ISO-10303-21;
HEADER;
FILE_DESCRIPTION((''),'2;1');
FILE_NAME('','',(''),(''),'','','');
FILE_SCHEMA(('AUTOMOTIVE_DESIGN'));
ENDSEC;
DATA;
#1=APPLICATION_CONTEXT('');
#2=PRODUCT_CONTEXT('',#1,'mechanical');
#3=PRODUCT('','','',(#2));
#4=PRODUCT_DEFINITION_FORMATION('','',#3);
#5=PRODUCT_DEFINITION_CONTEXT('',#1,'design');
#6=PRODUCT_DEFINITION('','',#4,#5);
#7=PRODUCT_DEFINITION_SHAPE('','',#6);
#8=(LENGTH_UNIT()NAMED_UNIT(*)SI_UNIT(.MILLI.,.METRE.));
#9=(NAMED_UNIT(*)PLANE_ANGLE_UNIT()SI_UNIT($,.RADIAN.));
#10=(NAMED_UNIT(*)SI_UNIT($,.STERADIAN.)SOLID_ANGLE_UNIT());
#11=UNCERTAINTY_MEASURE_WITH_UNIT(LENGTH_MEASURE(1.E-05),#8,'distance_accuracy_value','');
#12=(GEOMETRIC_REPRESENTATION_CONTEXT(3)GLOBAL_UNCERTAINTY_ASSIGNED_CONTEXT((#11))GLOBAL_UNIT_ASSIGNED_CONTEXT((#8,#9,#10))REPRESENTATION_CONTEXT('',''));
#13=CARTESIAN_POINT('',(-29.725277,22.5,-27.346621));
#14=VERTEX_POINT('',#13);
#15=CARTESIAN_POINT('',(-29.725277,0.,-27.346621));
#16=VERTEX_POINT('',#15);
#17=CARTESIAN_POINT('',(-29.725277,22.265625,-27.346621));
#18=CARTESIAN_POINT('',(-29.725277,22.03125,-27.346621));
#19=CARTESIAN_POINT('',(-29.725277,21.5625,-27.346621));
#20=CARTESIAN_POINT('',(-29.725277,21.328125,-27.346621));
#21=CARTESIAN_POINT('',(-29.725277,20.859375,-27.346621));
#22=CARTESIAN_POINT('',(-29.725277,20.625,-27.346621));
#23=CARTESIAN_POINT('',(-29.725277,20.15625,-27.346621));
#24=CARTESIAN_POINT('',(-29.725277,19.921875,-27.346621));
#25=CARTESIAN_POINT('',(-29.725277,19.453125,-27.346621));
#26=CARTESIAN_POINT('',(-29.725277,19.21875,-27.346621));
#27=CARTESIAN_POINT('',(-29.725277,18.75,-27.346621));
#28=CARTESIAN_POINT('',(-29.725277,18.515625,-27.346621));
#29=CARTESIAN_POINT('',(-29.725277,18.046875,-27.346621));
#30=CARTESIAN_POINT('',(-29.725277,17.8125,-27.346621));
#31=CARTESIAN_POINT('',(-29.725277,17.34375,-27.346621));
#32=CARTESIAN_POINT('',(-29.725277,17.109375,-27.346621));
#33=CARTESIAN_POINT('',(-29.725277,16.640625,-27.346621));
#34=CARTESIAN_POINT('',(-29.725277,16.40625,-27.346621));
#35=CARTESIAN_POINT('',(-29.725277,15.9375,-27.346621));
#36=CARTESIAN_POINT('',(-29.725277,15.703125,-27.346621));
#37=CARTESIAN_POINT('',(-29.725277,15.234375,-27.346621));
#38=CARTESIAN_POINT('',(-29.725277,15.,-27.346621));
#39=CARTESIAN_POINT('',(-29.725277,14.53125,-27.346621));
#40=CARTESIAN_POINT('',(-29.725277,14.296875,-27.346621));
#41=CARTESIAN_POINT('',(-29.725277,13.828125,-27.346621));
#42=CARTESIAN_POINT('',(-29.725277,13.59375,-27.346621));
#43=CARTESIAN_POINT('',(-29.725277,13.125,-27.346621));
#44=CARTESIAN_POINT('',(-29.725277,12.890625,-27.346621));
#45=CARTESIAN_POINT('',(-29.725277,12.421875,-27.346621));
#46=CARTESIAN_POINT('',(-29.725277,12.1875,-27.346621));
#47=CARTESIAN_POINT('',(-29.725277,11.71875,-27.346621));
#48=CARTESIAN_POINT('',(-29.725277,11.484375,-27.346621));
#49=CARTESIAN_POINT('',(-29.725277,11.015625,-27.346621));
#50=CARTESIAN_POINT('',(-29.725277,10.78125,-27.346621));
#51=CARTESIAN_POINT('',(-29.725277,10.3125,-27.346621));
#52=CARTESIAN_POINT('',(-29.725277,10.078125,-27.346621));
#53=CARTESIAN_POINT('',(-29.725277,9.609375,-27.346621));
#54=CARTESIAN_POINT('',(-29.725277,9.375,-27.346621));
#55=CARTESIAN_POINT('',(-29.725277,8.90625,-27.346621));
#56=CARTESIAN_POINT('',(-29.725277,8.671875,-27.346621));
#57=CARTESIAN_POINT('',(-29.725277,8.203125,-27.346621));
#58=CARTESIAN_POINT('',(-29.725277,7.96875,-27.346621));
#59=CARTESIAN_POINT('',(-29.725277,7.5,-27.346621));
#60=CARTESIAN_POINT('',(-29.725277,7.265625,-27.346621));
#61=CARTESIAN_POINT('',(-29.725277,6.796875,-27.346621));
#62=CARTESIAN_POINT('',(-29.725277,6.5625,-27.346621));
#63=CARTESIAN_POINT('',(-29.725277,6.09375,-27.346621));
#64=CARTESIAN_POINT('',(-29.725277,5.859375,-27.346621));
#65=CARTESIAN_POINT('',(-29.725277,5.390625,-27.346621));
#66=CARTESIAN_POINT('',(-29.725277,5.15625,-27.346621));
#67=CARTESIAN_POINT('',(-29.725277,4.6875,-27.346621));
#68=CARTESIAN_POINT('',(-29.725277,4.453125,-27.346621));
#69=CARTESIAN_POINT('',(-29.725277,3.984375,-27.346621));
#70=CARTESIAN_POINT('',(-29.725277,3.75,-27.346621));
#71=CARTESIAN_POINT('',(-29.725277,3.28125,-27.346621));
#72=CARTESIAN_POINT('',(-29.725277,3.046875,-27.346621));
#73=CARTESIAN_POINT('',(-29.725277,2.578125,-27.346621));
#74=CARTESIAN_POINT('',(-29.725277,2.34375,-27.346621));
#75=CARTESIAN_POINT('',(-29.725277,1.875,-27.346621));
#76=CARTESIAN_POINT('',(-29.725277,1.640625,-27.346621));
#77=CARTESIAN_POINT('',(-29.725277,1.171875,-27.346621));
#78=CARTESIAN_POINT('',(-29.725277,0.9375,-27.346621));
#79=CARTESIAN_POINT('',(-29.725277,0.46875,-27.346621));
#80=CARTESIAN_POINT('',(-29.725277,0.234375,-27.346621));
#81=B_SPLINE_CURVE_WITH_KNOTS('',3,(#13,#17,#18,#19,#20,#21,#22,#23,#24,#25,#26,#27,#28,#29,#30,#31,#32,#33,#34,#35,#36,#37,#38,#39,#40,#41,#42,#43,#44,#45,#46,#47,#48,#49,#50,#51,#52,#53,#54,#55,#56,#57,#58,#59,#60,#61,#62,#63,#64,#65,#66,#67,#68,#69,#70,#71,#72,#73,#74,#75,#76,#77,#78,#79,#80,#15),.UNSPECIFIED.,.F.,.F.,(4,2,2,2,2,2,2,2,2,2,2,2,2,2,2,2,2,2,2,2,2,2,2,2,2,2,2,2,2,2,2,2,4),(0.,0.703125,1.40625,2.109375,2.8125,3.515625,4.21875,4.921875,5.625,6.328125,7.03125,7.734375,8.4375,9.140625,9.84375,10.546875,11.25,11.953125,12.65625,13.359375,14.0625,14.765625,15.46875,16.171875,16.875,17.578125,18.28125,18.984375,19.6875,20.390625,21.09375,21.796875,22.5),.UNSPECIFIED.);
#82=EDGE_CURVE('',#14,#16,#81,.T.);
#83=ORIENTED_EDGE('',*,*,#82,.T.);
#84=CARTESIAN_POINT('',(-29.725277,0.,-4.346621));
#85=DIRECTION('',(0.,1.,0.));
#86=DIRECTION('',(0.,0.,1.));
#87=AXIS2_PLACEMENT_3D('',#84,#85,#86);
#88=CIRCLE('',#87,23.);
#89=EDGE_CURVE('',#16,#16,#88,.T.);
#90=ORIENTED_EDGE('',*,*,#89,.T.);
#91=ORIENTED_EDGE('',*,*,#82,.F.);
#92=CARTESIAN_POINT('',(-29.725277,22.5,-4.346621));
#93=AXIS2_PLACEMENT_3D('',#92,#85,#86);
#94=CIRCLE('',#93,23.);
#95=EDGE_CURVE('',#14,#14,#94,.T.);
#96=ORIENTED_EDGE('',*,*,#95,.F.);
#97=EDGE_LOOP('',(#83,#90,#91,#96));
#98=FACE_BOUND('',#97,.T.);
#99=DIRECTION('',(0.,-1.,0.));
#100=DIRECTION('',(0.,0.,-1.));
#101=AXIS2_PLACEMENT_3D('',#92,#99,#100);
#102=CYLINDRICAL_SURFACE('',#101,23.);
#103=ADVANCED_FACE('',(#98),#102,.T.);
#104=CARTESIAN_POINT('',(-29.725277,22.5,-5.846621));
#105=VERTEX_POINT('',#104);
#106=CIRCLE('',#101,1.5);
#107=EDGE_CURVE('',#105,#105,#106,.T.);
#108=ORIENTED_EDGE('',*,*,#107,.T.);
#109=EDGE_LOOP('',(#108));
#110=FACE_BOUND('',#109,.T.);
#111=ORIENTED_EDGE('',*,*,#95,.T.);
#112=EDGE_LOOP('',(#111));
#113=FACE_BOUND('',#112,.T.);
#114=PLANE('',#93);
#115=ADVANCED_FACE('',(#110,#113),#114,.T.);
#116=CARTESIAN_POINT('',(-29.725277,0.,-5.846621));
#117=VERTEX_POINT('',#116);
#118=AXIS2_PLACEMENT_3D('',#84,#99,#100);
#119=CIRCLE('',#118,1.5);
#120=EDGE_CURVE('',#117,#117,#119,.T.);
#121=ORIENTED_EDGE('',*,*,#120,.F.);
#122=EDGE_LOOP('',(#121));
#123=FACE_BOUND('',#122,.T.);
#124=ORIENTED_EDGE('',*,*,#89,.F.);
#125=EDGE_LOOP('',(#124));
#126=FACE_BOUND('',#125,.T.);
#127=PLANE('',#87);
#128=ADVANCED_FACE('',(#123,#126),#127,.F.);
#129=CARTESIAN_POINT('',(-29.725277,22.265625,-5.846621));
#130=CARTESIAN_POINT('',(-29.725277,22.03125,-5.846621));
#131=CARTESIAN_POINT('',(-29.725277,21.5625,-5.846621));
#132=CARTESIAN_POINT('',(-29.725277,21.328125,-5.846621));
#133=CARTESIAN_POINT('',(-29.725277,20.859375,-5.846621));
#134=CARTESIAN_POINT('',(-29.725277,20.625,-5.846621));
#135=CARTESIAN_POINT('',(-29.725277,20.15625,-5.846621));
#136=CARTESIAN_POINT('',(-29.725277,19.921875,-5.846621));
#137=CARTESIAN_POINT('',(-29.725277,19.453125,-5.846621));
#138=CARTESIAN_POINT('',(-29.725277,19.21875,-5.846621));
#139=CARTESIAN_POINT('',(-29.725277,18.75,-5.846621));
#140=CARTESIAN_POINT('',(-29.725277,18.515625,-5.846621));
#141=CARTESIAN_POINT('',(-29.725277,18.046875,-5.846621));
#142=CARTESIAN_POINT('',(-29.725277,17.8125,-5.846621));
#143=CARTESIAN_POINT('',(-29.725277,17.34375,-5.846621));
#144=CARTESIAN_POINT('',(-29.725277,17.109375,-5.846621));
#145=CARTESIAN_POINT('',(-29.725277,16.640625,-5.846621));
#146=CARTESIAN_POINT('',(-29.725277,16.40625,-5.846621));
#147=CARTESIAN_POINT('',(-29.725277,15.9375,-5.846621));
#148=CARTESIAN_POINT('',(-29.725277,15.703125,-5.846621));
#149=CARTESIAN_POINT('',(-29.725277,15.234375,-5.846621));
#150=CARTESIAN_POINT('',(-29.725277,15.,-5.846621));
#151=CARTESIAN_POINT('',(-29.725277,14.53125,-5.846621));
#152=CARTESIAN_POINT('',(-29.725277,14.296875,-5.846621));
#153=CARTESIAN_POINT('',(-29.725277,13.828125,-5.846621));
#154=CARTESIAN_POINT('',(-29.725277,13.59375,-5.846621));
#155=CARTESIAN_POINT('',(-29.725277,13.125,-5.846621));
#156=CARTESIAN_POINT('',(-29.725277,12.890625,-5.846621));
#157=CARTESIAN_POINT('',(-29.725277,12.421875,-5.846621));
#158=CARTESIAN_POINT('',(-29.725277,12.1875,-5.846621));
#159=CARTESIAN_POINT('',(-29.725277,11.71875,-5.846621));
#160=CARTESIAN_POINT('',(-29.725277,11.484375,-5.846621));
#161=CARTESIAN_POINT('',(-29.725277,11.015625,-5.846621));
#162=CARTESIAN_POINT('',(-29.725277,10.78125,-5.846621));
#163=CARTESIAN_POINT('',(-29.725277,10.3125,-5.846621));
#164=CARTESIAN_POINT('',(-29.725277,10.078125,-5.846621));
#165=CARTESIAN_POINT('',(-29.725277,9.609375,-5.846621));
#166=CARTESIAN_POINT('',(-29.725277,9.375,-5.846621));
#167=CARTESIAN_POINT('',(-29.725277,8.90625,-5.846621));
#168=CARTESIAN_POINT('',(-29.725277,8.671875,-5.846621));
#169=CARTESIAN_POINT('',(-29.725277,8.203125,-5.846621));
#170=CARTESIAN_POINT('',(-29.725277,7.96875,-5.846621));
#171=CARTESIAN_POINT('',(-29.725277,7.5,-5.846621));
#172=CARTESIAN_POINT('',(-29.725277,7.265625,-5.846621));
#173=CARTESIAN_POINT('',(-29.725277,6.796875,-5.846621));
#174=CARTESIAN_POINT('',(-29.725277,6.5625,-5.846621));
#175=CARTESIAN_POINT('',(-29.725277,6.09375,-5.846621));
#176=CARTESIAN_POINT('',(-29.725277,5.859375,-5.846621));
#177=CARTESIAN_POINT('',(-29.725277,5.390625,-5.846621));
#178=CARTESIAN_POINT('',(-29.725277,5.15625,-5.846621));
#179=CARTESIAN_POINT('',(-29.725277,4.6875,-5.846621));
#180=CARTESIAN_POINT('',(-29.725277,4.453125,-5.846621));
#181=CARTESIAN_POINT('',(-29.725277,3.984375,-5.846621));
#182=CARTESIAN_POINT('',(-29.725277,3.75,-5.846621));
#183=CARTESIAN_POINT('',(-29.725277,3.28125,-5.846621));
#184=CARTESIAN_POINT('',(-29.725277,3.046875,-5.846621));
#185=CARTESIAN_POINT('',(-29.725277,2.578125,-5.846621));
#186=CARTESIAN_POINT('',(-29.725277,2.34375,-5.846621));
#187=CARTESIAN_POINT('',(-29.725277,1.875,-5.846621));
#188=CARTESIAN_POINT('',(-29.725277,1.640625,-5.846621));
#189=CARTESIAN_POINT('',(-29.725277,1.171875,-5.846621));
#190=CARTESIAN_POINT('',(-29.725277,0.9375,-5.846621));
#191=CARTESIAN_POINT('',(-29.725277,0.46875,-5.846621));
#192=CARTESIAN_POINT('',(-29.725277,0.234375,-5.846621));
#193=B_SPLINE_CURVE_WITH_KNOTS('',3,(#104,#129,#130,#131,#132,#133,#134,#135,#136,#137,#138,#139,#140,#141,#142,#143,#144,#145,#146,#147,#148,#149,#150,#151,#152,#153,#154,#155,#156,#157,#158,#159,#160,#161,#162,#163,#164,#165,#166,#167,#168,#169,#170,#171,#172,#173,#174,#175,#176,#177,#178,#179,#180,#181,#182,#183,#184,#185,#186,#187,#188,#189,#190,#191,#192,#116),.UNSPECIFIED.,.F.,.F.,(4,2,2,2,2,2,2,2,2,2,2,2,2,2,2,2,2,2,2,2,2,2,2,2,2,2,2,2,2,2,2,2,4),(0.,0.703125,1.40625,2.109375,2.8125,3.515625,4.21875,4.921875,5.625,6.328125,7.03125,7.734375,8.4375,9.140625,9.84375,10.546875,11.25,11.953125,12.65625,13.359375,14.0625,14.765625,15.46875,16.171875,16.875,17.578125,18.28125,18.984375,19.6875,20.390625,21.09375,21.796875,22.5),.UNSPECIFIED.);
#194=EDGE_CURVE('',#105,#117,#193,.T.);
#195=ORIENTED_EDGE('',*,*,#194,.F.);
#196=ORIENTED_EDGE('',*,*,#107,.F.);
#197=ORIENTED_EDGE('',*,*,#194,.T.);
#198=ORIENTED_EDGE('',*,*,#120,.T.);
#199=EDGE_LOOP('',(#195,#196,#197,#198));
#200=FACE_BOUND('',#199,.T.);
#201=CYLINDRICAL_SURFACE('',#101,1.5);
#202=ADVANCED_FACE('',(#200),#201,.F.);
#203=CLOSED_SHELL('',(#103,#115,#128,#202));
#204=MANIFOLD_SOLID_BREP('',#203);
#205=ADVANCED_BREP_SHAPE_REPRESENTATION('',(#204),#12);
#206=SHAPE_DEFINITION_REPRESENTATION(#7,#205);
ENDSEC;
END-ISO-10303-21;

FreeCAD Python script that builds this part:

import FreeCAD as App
import Part
import Sketcher

V = App.Vector

doc = App.newDocument("Part")
body = doc.addObject("PartDesign::Body", "Body")

sketch1 = doc.addObject("Sketcher::SketchObject", "Sketch")
body.addObject(sketch1)
sketch1.AttachmentSupport = (doc.XZ_Plane, [""])
sketch1.MapMode = "FlatFace"
sketch1.addGeometry(Part.Circle(V(-29.725277, -4.346621, 0), V(0, 0, 1), 23), False)
sketch1.addConstraint([
    Sketcher.Constraint("Diameter", 0, 46.0),
    Sketcher.Constraint("DistanceY", 0, 3, -1, 1, 4.346621),
    Sketcher.Constraint("DistanceX", 0, 3, -1, 1, 29.725277),
])
pad1 = doc.addObject("PartDesign::Pad", "Pad")
body.addObject(pad1)
pad1.Profile = sketch1
pad1.Length = 22.5
pad1.Reversed = True

sketch2 = doc.addObject("Sketcher::SketchObject", "Sketch001")
body.addObject(sketch2)
sketch2.AttachmentSupport = (doc.XZ_Plane, [""])
sketch2.MapMode = "FlatFace"
sketch2.addGeometry(Part.Circle(V(-29.725277, -4.346621, 0), V(0, 0, 1), 1.5), False)
sketch2.addConstraint([
    Sketcher.Constraint("Diameter", 0, 3.0),
    Sketcher.Constraint("DistanceY", 0, 3, -1, 1, 4.346621),
    Sketcher.Constraint("DistanceX", 0, 3, -1, 1, 29.725277),
])
pocket1 = doc.addObject("PartDesign::Pocket", "Pocket")
body.addObject(pocket1)
pocket1.Profile = sketch2
pocket1.Type = "ThroughAll"

doc.recompute()
